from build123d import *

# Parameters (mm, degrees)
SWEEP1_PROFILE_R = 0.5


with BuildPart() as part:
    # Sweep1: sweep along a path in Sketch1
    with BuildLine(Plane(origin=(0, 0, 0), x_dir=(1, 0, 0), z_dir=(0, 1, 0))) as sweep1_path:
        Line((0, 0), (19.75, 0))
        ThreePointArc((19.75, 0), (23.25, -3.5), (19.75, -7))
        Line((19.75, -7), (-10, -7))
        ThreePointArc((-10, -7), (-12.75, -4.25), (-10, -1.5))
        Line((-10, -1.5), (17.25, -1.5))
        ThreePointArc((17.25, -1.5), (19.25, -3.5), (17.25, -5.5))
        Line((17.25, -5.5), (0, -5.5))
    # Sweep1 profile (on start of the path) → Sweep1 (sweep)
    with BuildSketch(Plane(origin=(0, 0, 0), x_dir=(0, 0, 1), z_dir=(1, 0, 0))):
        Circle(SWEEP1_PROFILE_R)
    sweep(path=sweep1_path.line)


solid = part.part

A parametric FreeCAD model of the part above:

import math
import FreeCAD as App
import Part
import Sketcher

doc = App.newDocument("Part")
body = doc.addObject("PartDesign::Body", "Body")

sketch1 = doc.addObject("Sketcher::SketchObject", "Sketch")
body.addObject(sketch1)
sketch1.AttachmentSupport = (doc.YZ_Plane, [""])
sketch1.MapMode = "FlatFace"
sketch1.addGeometry(Part.Circle(App.Vector(0, 0, 0), App.Vector(0, 0, 1), 0.5), False)
sketch1.addConstraint([
    Sketcher.Constraint("Coincident", 0, 3, -1, 1),
    Sketcher.Constraint("Diameter", 0, 1.0),
])

sketch2 = doc.addObject("Sketcher::SketchObject", "Sketch001")
body.addObject(sketch2)
sketch2.AttachmentSupport = (doc.XZ_Plane, [""])
sketch2.MapMode = "FlatFace"
sketch2.addGeometry([
    Part.LineSegment(App.Vector(0, 0, 0), App.Vector(19.75, 0, 0)),
    Part.ArcOfCircle(Part.Circle(App.Vector(19.75, 3.5, 0), App.Vector(0, 0, 1), 3.5), math.radians(-90), math.radians(90)),
    Part.LineSegment(App.Vector(19.75, 7, 0), App.Vector(-10, 7, 0)),
    Part.ArcOfCircle(Part.Circle(App.Vector(-10, 4.25, 0), App.Vector(0, 0, 1), 2.75), math.radians(90), math.radians(270)),
    Part.LineSegment(App.Vector(-10, 1.5, 0), App.Vector(17.25, 1.5, 0)),
    Part.ArcOfCircle(Part.Circle(App.Vector(17.25, 3.5, 0), App.Vector(0, 0, 1), 2), math.radians(-90), math.radians(90)),
    Part.LineSegment(App.Vector(17.25, 5.5, 0), App.Vector(0, 5.5, 0)),
], False)
sketch2.addConstraint([
    Sketcher.Constraint("Tangent", 0, 2, 1, 1),
    Sketcher.Constraint("Tangent", 1, 2, 2, 1),
    Sketcher.Constraint("Tangent", 2, 2, 3, 1),
    Sketcher.Constraint("Tangent", 3, 2, 4, 1),
    Sketcher.Constraint("Tangent", 4, 2, 5, 1),
    Sketcher.Constraint("Tangent", 5, 2, 6, 1),
    Sketcher.Constraint("Horizontal", 0),
    Sketcher.Constraint("Horizontal", 2),
    Sketcher.Constraint("Horizontal", 4),
    Sketcher.Constraint("Horizontal", 6),
    Sketcher.Constraint("Coincident", 0, 1, -1, 1),
    Sketcher.Constraint("PointOnObject", 6, 2, -2),
    Sketcher.Constraint("Horizontal", 1, 3, 5, 3),
    Sketcher.Constraint("Radius", 5, 2.0),
    Sketcher.Constraint("Radius", 1, 3.5),
    Sketcher.Constraint("DistanceX", 3, 3, -1, 1, 10.0),
    Sketcher.Constraint("DistanceX", 0, 1, 0, 2, 19.75),
    Sketcher.Constraint("DistanceX", 4, 1, 4, 2, 27.25),
])
doc.recompute()

additivepipe = doc.addObject("PartDesign::AdditivePipe", "AdditivePipe")
body.addObject(additivepipe)
additivepipe.Profile = sketch1
additivepipe.Spine = (sketch2, ["Edge1", "Edge2", "Edge3", "Edge4", "Edge5", "Edge6", "Edge7"])

doc.recompute()
